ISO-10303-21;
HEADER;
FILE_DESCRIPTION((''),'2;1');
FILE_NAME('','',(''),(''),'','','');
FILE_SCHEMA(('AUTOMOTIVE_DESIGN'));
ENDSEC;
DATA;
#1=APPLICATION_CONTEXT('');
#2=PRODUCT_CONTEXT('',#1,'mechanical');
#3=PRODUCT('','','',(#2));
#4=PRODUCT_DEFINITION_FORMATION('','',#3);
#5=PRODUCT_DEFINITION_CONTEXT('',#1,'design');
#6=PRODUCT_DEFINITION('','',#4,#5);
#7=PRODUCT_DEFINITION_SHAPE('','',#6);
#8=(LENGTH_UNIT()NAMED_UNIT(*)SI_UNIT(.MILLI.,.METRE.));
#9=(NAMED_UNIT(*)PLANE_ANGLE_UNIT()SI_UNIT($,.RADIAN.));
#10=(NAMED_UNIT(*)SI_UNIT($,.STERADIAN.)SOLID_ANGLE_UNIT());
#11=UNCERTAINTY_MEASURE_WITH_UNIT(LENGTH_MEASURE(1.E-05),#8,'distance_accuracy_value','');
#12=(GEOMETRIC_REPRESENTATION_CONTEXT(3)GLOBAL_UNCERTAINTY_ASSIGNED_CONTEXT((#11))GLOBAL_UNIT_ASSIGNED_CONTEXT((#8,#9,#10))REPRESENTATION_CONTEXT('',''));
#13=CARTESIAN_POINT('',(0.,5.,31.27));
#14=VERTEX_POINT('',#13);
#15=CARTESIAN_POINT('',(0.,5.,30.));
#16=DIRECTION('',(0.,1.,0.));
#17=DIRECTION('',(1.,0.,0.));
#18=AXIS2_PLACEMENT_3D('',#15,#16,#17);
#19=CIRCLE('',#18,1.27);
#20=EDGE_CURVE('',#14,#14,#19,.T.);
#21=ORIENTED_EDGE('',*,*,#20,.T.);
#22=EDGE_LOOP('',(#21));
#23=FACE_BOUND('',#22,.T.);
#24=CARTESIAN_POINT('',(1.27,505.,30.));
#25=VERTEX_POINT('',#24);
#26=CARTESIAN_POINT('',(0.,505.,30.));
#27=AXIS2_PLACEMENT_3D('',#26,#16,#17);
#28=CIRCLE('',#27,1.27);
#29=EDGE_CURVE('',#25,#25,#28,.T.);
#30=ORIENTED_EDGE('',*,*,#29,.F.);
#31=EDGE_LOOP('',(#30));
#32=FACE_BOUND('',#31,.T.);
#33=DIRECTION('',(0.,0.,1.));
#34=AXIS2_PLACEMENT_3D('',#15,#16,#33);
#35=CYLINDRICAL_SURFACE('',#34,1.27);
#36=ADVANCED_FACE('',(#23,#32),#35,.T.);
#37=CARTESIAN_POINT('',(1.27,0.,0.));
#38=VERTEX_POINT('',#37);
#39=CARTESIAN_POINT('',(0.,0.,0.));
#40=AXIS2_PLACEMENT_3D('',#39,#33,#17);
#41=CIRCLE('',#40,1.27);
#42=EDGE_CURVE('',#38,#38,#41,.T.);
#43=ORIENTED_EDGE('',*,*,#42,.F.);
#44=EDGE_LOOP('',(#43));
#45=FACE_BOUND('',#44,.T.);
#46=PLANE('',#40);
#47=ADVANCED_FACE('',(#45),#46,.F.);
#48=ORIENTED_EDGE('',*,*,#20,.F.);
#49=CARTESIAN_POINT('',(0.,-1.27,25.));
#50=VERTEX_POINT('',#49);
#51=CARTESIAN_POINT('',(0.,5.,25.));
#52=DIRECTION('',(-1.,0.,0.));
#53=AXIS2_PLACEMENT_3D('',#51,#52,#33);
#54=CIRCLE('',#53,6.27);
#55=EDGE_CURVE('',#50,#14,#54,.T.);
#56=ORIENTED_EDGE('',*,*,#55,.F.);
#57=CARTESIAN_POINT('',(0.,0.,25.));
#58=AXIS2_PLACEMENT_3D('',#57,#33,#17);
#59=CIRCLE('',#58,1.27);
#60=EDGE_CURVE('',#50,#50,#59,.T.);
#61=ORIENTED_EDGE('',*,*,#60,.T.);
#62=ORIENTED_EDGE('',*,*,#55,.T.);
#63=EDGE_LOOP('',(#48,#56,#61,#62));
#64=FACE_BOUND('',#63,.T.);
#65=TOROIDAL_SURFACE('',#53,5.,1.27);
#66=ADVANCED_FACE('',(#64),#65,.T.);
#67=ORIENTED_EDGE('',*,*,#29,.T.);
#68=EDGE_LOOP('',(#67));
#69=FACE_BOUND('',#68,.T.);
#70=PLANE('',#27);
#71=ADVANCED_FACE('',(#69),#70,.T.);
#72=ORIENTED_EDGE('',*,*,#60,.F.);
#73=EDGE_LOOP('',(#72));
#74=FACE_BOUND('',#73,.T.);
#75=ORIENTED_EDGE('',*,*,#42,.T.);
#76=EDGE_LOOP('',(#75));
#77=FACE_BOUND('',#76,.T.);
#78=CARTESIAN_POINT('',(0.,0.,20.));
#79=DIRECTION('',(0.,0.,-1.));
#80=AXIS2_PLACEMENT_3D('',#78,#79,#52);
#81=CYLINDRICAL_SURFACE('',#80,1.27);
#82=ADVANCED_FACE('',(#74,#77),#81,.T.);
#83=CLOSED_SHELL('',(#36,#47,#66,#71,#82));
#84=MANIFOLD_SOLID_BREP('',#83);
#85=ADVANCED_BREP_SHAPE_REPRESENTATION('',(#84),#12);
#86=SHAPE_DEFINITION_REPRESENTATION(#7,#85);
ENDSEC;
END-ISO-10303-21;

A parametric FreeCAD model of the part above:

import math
import FreeCAD as App
import Part
import Sketcher
from FreeCAD import Vector

doc = App.newDocument("Part")
body = doc.addObject("PartDesign::Body", "Body")

sketch1 = body.newObject("Sketcher::SketchObject", "Sketch")
sketch1.AttachmentSupport = (doc.getObject("XY_Plane"), [""])
sketch1.MapMode = "FlatFace"
sketch1.addGeometry(Part.Circle(Vector(0, 0, 0), Vector(0, 0, 1), 1.27), False)
sketch1.addConstraint([
    Sketcher.Constraint("Coincident", 0, 3, -1, 1),
    Sketcher.Constraint("Diameter", 0, 2.54),
])
pad1 = body.newObject("PartDesign::Pad", "Pad")
pad1.Profile = sketch1
pad1.Length = 20

sketch2 = body.newObject("Sketcher::SketchObject", "Sketch001")
sketch2.AttachmentSupport = (doc.getObject("XY_Plane"), [""])
sketch2.MapMode = "FlatFace"
sketch2.AttachmentOffset = App.Placement(Vector(0, 0, 20), App.Rotation())
sketch2.addGeometry(Part.Circle(Vector(0, 0, 0), Vector(0, 0, 1), 1.27), False)
sketch2.addConstraint([
    Sketcher.Constraint("Coincident", 0, 3, -1, 1),
    Sketcher.Constraint("Diameter", 0, 2.54),
])

sketch3 = body.newObject("Sketcher::SketchObject", "Sketch002")
sketch3.AttachmentSupport = (doc.getObject("YZ_Plane"), [""])
sketch3.MapMode = "FlatFace"
sketch3.addGeometry([
    Part.LineSegment(Vector(0, 20, 0), Vector(0, 25, 0)),
    Part.ArcOfCircle(Part.Circle(Vector(5, 25, 0), Vector(0, 0, 1), 5), math.radians(90), math.radians(180)),
    Part.LineSegment(Vector(5, 30, 0), Vector(505, 30, 0)),
], False)
sketch3.addConstraint([
    Sketcher.Constraint("Tangent", 0, 2, 1, 2),
    Sketcher.Constraint("Tangent", 1, 1, 2, 1),
    Sketcher.Constraint("Vertical", 0),
    Sketcher.Constraint("Horizontal", 2),
    Sketcher.Constraint("PointOnObject", 0, 1, -2),
    Sketcher.Constraint("Radius", 1, 5.0),
    Sketcher.Constraint("DistanceX", 2, 1, 2, 2, 500.0),
    Sketcher.Constraint("DistanceY", 0, 1, 0, 2, 5.0),
    Sketcher.Constraint("DistanceY", -1, 1, 1, 3, 25.0),
])
doc.recompute()

additivepipe = body.newObject("PartDesign::AdditivePipe", "AdditivePipe")
additivepipe.Profile = sketch2
additivepipe.Spine = (sketch3, ["Edge1", "Edge2", "Edge3"])

doc.recompute()
